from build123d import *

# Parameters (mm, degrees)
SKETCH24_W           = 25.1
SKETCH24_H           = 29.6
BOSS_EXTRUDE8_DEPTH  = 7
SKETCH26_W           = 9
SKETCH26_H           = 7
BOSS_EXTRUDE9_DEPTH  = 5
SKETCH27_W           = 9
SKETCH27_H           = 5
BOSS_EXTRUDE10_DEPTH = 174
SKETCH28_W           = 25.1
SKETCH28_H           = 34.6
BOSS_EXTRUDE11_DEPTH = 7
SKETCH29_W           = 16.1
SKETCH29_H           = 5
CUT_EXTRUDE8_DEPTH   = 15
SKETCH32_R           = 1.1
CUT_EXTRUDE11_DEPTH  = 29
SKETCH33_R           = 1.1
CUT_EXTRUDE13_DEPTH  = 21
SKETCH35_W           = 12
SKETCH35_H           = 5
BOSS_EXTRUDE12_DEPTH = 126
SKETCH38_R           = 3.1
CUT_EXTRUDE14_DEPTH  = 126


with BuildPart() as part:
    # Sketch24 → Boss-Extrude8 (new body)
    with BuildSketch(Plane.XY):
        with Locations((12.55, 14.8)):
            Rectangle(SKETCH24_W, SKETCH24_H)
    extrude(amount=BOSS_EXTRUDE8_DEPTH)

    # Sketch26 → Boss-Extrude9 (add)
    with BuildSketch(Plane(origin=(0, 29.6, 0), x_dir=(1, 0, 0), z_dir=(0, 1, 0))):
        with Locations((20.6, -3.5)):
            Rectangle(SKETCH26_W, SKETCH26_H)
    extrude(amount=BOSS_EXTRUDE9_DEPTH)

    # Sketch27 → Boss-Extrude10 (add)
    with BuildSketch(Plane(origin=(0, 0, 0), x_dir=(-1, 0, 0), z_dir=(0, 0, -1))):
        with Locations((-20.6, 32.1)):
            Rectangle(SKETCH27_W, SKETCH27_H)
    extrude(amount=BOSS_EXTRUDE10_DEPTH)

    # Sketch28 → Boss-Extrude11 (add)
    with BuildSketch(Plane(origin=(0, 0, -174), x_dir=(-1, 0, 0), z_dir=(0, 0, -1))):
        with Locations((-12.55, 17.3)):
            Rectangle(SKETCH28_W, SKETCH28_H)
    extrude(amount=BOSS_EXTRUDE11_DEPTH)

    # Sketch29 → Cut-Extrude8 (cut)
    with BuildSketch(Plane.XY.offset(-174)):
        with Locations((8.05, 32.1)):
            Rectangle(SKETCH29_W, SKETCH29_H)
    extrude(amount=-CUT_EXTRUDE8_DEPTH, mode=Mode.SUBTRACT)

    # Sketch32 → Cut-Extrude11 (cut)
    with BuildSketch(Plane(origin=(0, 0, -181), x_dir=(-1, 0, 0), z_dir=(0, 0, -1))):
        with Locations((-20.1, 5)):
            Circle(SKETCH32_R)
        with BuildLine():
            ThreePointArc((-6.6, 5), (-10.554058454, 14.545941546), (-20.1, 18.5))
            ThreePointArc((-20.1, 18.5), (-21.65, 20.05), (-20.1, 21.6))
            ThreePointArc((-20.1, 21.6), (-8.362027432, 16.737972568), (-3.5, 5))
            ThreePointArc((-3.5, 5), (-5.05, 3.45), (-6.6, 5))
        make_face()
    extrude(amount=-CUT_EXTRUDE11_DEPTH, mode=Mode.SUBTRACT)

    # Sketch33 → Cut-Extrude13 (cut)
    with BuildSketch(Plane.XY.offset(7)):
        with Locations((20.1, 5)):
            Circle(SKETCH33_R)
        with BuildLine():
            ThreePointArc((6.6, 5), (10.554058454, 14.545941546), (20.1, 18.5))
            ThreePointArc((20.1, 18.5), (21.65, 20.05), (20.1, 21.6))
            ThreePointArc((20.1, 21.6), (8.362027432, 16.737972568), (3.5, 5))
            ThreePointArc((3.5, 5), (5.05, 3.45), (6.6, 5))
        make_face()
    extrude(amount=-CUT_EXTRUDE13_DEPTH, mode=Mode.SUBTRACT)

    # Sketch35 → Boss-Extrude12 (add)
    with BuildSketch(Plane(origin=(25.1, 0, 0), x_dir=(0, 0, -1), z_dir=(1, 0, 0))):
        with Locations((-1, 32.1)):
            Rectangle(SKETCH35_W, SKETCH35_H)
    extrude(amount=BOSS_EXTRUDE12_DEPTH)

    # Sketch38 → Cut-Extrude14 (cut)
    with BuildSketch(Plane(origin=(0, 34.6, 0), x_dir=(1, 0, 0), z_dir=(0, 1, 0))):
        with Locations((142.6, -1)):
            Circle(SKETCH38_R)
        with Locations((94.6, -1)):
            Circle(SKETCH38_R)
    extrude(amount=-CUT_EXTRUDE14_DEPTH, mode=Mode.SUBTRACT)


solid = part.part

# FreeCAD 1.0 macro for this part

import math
import FreeCAD as App
import Part
import Sketcher

doc = App.newDocument("Part")
body = doc.addObject("PartDesign::Body", "Body")

# Sketch on XY plane
sketch1 = body.newObject("Sketcher::SketchObject", "Sketch")
sketch1.AttachmentSupport = (doc.getObject("XY_Plane"), [""])
sketch1.MapMode = "FlatFace"
sketch1.addGeometry([
    Part.LineSegment(App.Vector(0, 30, 0), App.Vector(0, 0, 0)),
    Part.LineSegment(App.Vector(0, 0, 0), App.Vector(25, 0, 0)),
    Part.LineSegment(App.Vector(25, 0, 0), App.Vector(25, 30, 0)),
    Part.LineSegment(App.Vector(25, 30, 0), App.Vector(0, 30, 0)),
], False)
sketch1.addConstraint([
    Sketcher.Constraint("Coincident", 0, 2, 1, 1),
    Sketcher.Constraint("Coincident", 1, 2, 2, 1),
    Sketcher.Constraint("Coincident", 2, 2, 3, 1),
    Sketcher.Constraint("Coincident", 3, 2, 0, 1),
    Sketcher.Constraint("Vertical", 0),
    Sketcher.Constraint("Horizontal", 1),
    Sketcher.Constraint("Vertical", 2),
    Sketcher.Constraint("Horizontal", 3),
    Sketcher.Constraint("Coincident", 0, 2, -1, 1),
    Sketcher.Constraint("DistanceX", 1, 1, 1, 2, 25.1),
    Sketcher.Constraint("DistanceY", 0, 2, 0, 1, 29.6),
])
pad1 = body.newObject("PartDesign::Pad", "Pad")
pad1.Profile = sketch1
pad1.Length = 7

# Sketch on XZ plane
sketch2 = body.newObject("Sketcher::SketchObject", "Sketch001")
sketch2.AttachmentSupport = (doc.getObject("XZ_Plane"), [""])
sketch2.MapMode = "FlatFace"
sketch2.AttachmentOffset = App.Placement(App.Vector(0, 0, -29.6), App.Rotation())
sketch2.addGeometry([
    Part.LineSegment(App.Vector(16, 0, 0), App.Vector(16, 7, 0)),
    Part.LineSegment(App.Vector(16, 7, 0), App.Vector(25, 7, 0)),
    Part.LineSegment(App.Vector(25, 7, 0), App.Vector(25, 0, 0)),
    Part.LineSegment(App.Vector(25, 0, 0), App.Vector(16, 0, 0)),
], False)
sketch2.addConstraint([
    Sketcher.Constraint("Coincident", 0, 2, 1, 1),
    Sketcher.Constraint("Coincident", 1, 2, 2, 1),
    Sketcher.Constraint("Coincident", 2, 2, 3, 1),
    Sketcher.Constraint("Coincident", 3, 2, 0, 1),
    Sketcher.Constraint("Vertical", 0),
    Sketcher.Constraint("Horizontal", 1),
    Sketcher.Constraint("Vertical", 2),
    Sketcher.Constraint("Horizontal", 3),
    Sketcher.Constraint("PointOnObject", 2, 2, -1),
    Sketcher.Constraint("DistanceX", 1, 1, 1, 2, 9.0),
    Sketcher.Constraint("DistanceY", 0, 1, 0, 2, 7.0),
    Sketcher.Constraint("DistanceX", -1, 1, 0, 2, 16.1),
])
pad2 = body.newObject("PartDesign::Pad", "Pad001")
pad2.Profile = sketch2
pad2.Length = 5
pad2.Reversed = True

# Sketch on XY plane
sketch3 = body.newObject("Sketcher::SketchObject", "Sketch002")
sketch3.AttachmentSupport = (doc.getObject("XY_Plane"), [""])
sketch3.MapMode = "FlatFace"
sketch3.addGeometry([
    Part.LineSegment(App.Vector(25, 35, 0), App.Vector(25, 30, 0)),
    Part.LineSegment(App.Vector(25, 30, 0), App.Vector(16, 30, 0)),
    Part.LineSegment(App.Vector(16, 30, 0), App.Vector(16, 35, 0)),
    Part.LineSegment(App.Vector(16, 35, 0), App.Vector(25, 35, 0)),
], False)
sketch3.addConstraint([
    Sketcher.Constraint("Coincident", 0, 2, 1, 1),
    Sketcher.Constraint("Coincident", 1, 2, 2, 1),
    Sketcher.Constraint("Coincident", 2, 2, 3, 1),
    Sketcher.Constraint("Coincident", 3, 2, 0, 1),
    Sketcher.Constraint("Vertical", 0),
    Sketcher.Constraint("Horizontal", 1),
    Sketcher.Constraint("Vertical", 2),
    Sketcher.Constraint("Horizontal", 3),
    Sketcher.Constraint("DistanceX", 1, 2, 1, 1, 9.0),
    Sketcher.Constraint("DistanceY", 0, 2, 0, 1, 5.0),
    Sketcher.Constraint("DistanceX", -1, 1, 0, 2, 25.1),
    Sketcher.Constraint("DistanceY", -1, 1, 0, 2, 29.6),
])
pad3 = body.newObject("PartDesign::Pad", "Pad002")
pad3.Profile = sketch3
pad3.Length = 174
pad3.Reversed = True

# Sketch on XY plane
sketch4 = body.newObject("Sketcher::SketchObject", "Sketch003")
sketch4.AttachmentSupport = (doc.getObject("XY_Plane"), [""])
sketch4.MapMode = "FlatFace"
sketch4.AttachmentOffset = App.Placement(App.Vector(0, 0, -174), App.Rotation())
sketch4.addGeometry([
    Part.LineSegment(App.Vector(25, 35, 0), App.Vector(25, 0, 0)),
    Part.LineSegment(App.Vector(25, 0, 0), App.Vector(0, 0, 0)),
    Part.LineSegment(App.Vector(0, 0, 0), App.Vector(0, 35, 0)),
    Part.LineSegment(App.Vector(0, 35, 0), App.Vector(25, 35, 0)),
], False)
sketch4.addConstraint([
    Sketcher.Constraint("Coincident", 0, 2, 1, 1),
    Sketcher.Constraint("Coincident", 1, 2, 2, 1),
    Sketcher.Constraint("Coincident", 2, 2, 3, 1),
    Sketcher.Constraint("Coincident", 3, 2, 0, 1),
    Sketcher.Constraint("Vertical", 0),
    Sketcher.Constraint("Horizontal", 1),
    Sketcher.Constraint("Vertical", 2),
    Sketcher.Constraint("Horizontal", 3),
    Sketcher.Constraint("Coincident", 1, 2, -1, 1),
    Sketcher.Constraint("DistanceX", 1, 2, 1, 1, 25.1),
    Sketcher.Constraint("DistanceY", 0, 2, 0, 1, 34.6),
])
pad4 = body.newObject("PartDesign::Pad", "Pad003")
pad4.Profile = sketch4
pad4.Length = 7
pad4.Reversed = True

# Sketch on XY plane
sketch5 = body.newObject("Sketcher::SketchObject", "Sketch004")
sketch5.AttachmentSupport = (doc.getObject("XY_Plane"), [""])
sketch5.MapMode = "FlatFace"
sketch5.AttachmentOffset = App.Placement(App.Vector(0, 0, -174), App.Rotation())
sketch5.addGeometry([
    Part.LineSegment(App.Vector(0, 35, 0), App.Vector(0, 30, 0)),
    Part.LineSegment(App.Vector(0, 30, 0), App.Vector(16, 30, 0)),
    Part.LineSegment(App.Vector(16, 30, 0), App.Vector(16, 35, 0)),
    Part.LineSegment(App.Vector(16, 35, 0), App.Vector(0, 35, 0)),
], False)
sketch5.addConstraint([
    Sketcher.Constraint("Coincident", 0, 2, 1, 1),
    Sketcher.Constraint("Coincident", 1, 2, 2, 1),
    Sketcher.Constraint("Coincident", 2, 2, 3, 1),
    Sketcher.Constraint("Coincident", 3, 2, 0, 1),
    Sketcher.Constraint("Vertical", 0),
    Sketcher.Constraint("Horizontal", 1),
    Sketcher.Constraint("Vertical", 2),
    Sketcher.Constraint("Horizontal", 3),
    Sketcher.Constraint("PointOnObject", 0, 2, -2),
    Sketcher.Constraint("DistanceY", 0, 2, 0, 1, 5.0),
    Sketcher.Constraint("DistanceX", 1, 1, 1, 2, 16.1),
    Sketcher.Constraint("DistanceY", -1, 1, 0, 2, 29.6),
])
pocket1 = body.newObject("PartDesign::Pocket", "Pocket")
pocket1.Profile = sketch5
pocket1.Length = 15

# Sketch on XY plane
sketch6 = body.newObject("Sketcher::SketchObject", "Sketch005")
sketch6.AttachmentSupport = (doc.getObject("XY_Plane"), [""])
sketch6.MapMode = "FlatFace"
sketch6.AttachmentOffset = App.Placement(App.Vector(0, 0, -181), App.Rotation())
sketch6.addGeometry([
    Part.Circle(App.Vector(20.1, 5, 0), App.Vector(0, 0, 1), 1.1),  # 0
    Part.ArcOfCircle(Part.Circle(App.Vector(20.1, 5, 0), App.Vector(0, 0, 1), 13.5), math.radians(90), math.radians(180)),  # 1
    Part.ArcOfCircle(Part.Circle(App.Vector(5, 5, 0), App.Vector(0, 0, 1), 1.6), math.radians(180), math.radians(360)),  # 2
    Part.ArcOfCircle(Part.Circle(App.Vector(20.1, 5, 0), App.Vector(0, 0, 1), 16.6), math.radians(90), math.radians(180)),  # 3
    Part.ArcOfCircle(Part.Circle(App.Vector(20.1, 20.1, 0), App.Vector(0, 0, 1), 1.6), math.radians(-90), math.radians(90)),  # 4
], False)
sketch6.addConstraint([
    Sketcher.Constraint("Tangent", 1, 2, 2, 2),
    Sketcher.Constraint("Tangent", 2, 1, 3, 2),
    Sketcher.Constraint("Tangent", 3, 1, 4, 2),
    Sketcher.Constraint("Tangent", 4, 1, 1, 1),
    Sketcher.Constraint("Coincident", 1, 3, 0, 3),
    Sketcher.Constraint("Coincident", 3, 3, 0, 3),
    Sketcher.Constraint("Horizontal", 1, 3, 2, 3),
    Sketcher.Constraint("Vertical", 3, 3, 4, 3),
    Sketcher.Constraint("Diameter", 0, 2.2),
    Sketcher.Constraint("Radius", 1, 13.5),
    Sketcher.Constraint("Radius", 3, 16.6),
    Sketcher.Constraint("DistanceY", -1, 1, 0, 3, 5.0),
    Sketcher.Constraint("DistanceX", -1, 1, 0, 3, 20.1),
])
pocket2 = body.newObject("PartDesign::Pocket", "Pocket001")
pocket2.Profile = sketch6
pocket2.Length = 29
pocket2.Reversed = True

# Sketch on XY plane
sketch7 = body.newObject("Sketcher::SketchObject", "Sketch006")
sketch7.AttachmentSupport = (doc.getObject("XY_Plane"), [""])
sketch7.MapMode = "FlatFace"
sketch7.AttachmentOffset = App.Placement(App.Vector(0, 0, 7), App.Rotation())
sketch7.addGeometry([
    Part.Circle(App.Vector(20.1, 5, 0), App.Vector(0, 0, 1), 1.1),  # 0
    Part.ArcOfCircle(Part.Circle(App.Vector(20.1, 5, 0), App.Vector(0, 0, 1), 13.5), math.radians(90), math.radians(180)),  # 1
    Part.ArcOfCircle(Part.Circle(App.Vector(20.1, 20.1, 0), App.Vector(0, 0, 1), 1.6), math.radians(-90), math.radians(90)),  # 2
    Part.ArcOfCircle(Part.Circle(App.Vector(20.1, 5, 0), App.Vector(0, 0, 1), 16.6), math.radians(90), math.radians(180)),  # 3
    Part.ArcOfCircle(Part.Circle(App.Vector(5, 5, 0), App.Vector(0, 0, 1), 1.6), math.radians(180), math.radians(360)),  # 4
], False)
sketch7.addConstraint([
    Sketcher.Constraint("Tangent", 1, 1, 2, 1),
    Sketcher.Constraint("Tangent", 2, 2, 3, 1),
    Sketcher.Constraint("Tangent", 3, 2, 4, 1),
    Sketcher.Constraint("Tangent", 4, 2, 1, 2),
    Sketcher.Constraint("Coincident", 1, 3, 0, 3),
    Sketcher.Constraint("Coincident", 3, 3, 0, 3),
    Sketcher.Constraint("Horizontal", 3, 3, 4, 3),
    Sketcher.Constraint("Vertical", 1, 3, 2, 3),
    Sketcher.Constraint("Diameter", 0, 2.2),
    Sketcher.Constraint("Radius", 1, 13.5),
    Sketcher.Constraint("Radius", 3, 16.6),
    Sketcher.Constraint("DistanceY", -1, 1, 0, 3, 5.0),
    Sketcher.Constraint("DistanceX", -1, 1, 0, 3, 20.1),
])
pocket3 = body.newObject("PartDesign::Pocket", "Pocket002")
pocket3.Profile = sketch7
pocket3.Length = 21

# Sketch on YZ plane
sketch8 = body.newObject("Sketcher::SketchObject", "Sketch007")
sketch8.AttachmentSupport = (doc.getObject("YZ_Plane"), [""])
sketch8.MapMode = "FlatFace"
sketch8.AttachmentOffset = App.Placement(App.Vector(0, 0, 25.1), App.Rotation())
sketch8.addGeometry([
    Part.LineSegment(App.Vector(35, 7, 0), App.Vector(30, 7, 0)),
    Part.LineSegment(App.Vector(30, 7, 0), App.Vector(30, -5, 0)),
    Part.LineSegment(App.Vector(30, -5, 0), App.Vector(35, -5, 0)),
    Part.LineSegment(App.Vector(35, -5, 0), App.Vector(35, 7, 0)),
], False)
sketch8.addConstraint([
    Sketcher.Constraint("Coincident", 0, 2, 1, 1),
    Sketcher.Constraint("Coincident", 1, 2, 2, 1),
    Sketcher.Constraint("Coincident", 2, 2, 3, 1),
    Sketcher.Constraint("Coincident", 3, 2, 0, 1),
    Sketcher.Constraint("Horizontal", 0),
    Sketcher.Constraint("Vertical", 1),
    Sketcher.Constraint("Horizontal", 2),
    Sketcher.Constraint("Vertical", 3),
    Sketcher.Constraint("DistanceX", 0, 2, 0, 1, 5.0),
    Sketcher.Constraint("DistanceY", 1, 2, 1, 1, 12.0),
    Sketcher.Constraint("DistanceY", -1, 1, 0, 2, 7.0),
    Sketcher.Constraint("DistanceX", -1, 1, 0, 2, 29.6),
])
pad5 = body.newObject("PartDesign::Pad", "Pad004")
pad5.Profile = sketch8
pad5.Length = 126

# Sketch on XZ plane
sketch9 = body.newObject("Sketcher::SketchObject", "Sketch008")
sketch9.AttachmentSupport = (doc.getObject("XZ_Plane"), [""])
sketch9.MapMode = "FlatFace"
sketch9.AttachmentOffset = App.Placement(App.Vector(0, 0, -34.6), App.Rotation())
sketch9.addGeometry([
    Part.Circle(App.Vector(142.6, 1, 0), App.Vector(0, 0, 1), 3.1),
    Part.Circle(App.Vector(94.6, 1, 0), App.Vector(0, 0, 1), 3.1),
], False)
sketch9.addConstraint([
    Sketcher.Constraint("Equal", 0, 1),
    Sketcher.Constraint("Horizontal", 0, 3, 1, 3),
    Sketcher.Constraint("Diameter", 0, 6.2),
    Sketcher.Constraint("DistanceY", -1, 1, 0, 3, 1.0),
    Sketcher.Constraint("DistanceX", 1, 3, 0, 3, 48.0),
    Sketcher.Constraint("DistanceX", -1, 1, 0, 3, 142.6),
])
pocket4 = body.newObject("PartDesign::Pocket", "Pocket003")
pocket4.Profile = sketch9
pocket4.Length = 126
pocket4.Reversed = True

doc.recompute()
